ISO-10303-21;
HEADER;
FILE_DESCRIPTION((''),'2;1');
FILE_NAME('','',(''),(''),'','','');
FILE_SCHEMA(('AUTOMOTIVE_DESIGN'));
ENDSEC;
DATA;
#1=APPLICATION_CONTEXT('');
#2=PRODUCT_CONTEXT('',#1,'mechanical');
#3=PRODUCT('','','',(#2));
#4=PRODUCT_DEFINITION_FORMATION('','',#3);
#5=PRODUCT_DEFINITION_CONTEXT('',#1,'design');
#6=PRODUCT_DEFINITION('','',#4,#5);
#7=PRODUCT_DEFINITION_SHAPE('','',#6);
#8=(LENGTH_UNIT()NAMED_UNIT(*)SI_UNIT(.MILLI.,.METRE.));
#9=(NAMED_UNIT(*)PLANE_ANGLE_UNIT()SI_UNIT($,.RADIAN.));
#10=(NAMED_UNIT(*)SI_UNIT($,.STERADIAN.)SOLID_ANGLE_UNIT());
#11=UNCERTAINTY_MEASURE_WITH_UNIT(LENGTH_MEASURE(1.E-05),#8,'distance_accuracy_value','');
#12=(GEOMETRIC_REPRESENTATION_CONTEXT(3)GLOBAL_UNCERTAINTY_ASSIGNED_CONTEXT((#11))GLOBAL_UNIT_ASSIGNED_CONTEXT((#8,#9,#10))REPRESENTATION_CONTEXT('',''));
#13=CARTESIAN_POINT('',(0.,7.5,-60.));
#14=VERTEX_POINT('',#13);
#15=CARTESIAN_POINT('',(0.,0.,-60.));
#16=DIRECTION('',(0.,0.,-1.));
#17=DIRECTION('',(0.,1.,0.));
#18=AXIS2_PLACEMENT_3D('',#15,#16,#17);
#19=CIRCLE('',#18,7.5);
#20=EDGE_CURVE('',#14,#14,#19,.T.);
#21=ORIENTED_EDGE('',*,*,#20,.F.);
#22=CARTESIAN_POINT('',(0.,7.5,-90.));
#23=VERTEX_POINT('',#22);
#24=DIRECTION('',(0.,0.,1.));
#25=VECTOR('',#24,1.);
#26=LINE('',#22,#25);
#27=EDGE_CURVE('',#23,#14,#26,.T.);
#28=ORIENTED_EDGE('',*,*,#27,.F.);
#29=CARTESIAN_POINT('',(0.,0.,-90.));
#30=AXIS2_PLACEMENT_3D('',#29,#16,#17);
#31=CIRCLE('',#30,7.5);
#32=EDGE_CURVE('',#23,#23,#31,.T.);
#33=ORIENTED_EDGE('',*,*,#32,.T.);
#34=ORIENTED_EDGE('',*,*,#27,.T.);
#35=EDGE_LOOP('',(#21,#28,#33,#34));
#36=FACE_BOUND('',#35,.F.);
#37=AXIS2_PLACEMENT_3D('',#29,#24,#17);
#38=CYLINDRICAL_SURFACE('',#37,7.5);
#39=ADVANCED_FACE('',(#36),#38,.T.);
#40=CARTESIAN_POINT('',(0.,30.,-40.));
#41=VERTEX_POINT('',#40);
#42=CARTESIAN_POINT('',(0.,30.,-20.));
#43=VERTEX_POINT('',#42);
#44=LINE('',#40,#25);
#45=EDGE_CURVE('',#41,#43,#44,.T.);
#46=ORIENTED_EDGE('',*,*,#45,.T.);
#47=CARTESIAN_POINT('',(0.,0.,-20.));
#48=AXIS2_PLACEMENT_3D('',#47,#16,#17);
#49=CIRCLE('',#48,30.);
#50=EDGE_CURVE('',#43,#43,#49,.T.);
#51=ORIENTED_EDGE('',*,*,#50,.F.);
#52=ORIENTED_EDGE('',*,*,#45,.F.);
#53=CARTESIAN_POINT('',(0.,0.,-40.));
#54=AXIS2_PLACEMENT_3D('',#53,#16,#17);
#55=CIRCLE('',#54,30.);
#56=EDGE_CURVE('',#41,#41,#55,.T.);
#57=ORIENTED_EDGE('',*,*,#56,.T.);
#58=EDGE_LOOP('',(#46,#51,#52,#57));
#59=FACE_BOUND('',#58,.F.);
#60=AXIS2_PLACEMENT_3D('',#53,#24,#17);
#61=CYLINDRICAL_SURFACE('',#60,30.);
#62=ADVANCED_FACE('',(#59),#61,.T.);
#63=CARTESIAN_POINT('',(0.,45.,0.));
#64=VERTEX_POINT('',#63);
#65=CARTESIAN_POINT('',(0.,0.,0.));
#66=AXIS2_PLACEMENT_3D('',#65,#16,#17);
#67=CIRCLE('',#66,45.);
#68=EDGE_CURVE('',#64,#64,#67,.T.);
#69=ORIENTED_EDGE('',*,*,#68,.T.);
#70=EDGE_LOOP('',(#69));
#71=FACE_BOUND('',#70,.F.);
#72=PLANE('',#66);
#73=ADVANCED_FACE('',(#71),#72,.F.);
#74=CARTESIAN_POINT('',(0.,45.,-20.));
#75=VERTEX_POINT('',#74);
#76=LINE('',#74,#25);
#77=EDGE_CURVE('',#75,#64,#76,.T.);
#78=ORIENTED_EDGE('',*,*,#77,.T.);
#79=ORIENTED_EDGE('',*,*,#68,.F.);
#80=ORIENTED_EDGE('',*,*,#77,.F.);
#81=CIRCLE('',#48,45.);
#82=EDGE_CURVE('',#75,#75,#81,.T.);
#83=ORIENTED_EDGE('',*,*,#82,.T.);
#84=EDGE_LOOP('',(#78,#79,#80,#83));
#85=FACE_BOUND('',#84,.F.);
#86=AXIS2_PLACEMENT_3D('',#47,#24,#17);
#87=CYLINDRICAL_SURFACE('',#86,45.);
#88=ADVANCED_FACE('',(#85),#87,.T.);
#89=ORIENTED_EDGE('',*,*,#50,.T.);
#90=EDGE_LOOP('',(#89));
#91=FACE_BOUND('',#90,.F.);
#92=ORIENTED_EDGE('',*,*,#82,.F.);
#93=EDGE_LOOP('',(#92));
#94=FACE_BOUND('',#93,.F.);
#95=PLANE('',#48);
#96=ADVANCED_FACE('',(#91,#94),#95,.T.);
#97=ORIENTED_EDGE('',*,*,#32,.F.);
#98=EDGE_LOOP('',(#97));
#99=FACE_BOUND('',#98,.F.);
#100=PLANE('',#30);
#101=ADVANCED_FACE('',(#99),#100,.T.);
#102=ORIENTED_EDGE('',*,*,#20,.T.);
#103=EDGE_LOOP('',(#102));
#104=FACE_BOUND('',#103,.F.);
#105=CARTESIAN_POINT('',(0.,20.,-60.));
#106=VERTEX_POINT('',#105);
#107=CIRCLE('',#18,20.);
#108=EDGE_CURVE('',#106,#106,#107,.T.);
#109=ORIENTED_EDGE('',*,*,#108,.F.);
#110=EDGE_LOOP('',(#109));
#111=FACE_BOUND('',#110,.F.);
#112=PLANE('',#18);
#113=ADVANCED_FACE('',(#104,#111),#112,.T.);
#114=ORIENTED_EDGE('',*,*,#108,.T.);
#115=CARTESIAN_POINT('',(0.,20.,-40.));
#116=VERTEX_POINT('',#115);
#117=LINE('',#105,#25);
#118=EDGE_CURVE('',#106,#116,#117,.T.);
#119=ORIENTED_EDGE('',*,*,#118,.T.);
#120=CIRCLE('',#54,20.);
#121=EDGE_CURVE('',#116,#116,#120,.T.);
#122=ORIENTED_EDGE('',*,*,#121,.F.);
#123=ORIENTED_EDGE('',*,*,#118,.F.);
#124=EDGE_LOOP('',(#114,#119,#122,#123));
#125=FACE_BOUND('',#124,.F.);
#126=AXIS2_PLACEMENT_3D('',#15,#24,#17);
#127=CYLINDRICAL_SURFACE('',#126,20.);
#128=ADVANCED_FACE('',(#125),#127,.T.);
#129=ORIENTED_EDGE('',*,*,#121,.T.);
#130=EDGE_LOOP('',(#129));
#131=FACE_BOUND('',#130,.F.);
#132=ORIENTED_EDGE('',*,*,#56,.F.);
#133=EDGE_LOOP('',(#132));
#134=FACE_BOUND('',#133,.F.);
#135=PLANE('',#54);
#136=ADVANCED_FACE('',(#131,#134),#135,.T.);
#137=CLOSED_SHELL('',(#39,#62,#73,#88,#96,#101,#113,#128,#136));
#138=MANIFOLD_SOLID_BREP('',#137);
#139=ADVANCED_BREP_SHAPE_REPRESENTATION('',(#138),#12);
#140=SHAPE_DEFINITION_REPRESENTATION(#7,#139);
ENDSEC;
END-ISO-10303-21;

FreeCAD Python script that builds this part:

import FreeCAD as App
import Part
import Sketcher

doc = App.newDocument("Part")
body = doc.addObject("PartDesign::Body", "Body")

# Sketch on YZ plane
sketch1 = body.newObject("Sketcher::SketchObject", "Sketch")
sketch1.AttachmentSupport = (doc.getObject("YZ_Plane"), [""])
sketch1.MapMode = "FlatFace"
sketch1.addGeometry(Part.LineSegment(App.Vector(45, 0, 0), App.Vector(0, 0, 0)), False)
sketch1.addGeometry(Part.LineSegment(App.Vector(0, 0, 0), App.Vector(0, -90, 0)), False)
sketch1.addGeometry(Part.LineSegment(App.Vector(0, -90, 0), App.Vector(8, -90, 0)), False)
sketch1.addGeometry(Part.LineSegment(App.Vector(8, -90, 0), App.Vector(8, -60, 0)), False)
sketch1.addGeometry(Part.LineSegment(App.Vector(8, -60, 0), App.Vector(20, -60, 0)), False)
sketch1.addGeometry(Part.LineSegment(App.Vector(20, -60, 0), App.Vector(20, -40, 0)), False)
sketch1.addGeometry(Part.LineSegment(App.Vector(20, -40, 0), App.Vector(30, -40, 0)), False)
sketch1.addGeometry(Part.LineSegment(App.Vector(30, -40, 0), App.Vector(30, -20, 0)), False)
sketch1.addGeometry(Part.LineSegment(App.Vector(30, -20, 0), App.Vector(45, -20, 0)), False)
sketch1.addGeometry(Part.LineSegment(App.Vector(45, -20, 0), App.Vector(45, 0, 0)), False)
sketch1.addConstraint(Sketcher.Constraint("Coincident", 0, 2, 1, 1))
sketch1.addConstraint(Sketcher.Constraint("Coincident", 1, 2, 2, 1))
sketch1.addConstraint(Sketcher.Constraint("Coincident", 2, 2, 3, 1))
sketch1.addConstraint(Sketcher.Constraint("Coincident", 3, 2, 4, 1))
sketch1.addConstraint(Sketcher.Constraint("Coincident", 4, 2, 5, 1))
sketch1.addConstraint(Sketcher.Constraint("Coincident", 5, 2, 6, 1))
sketch1.addConstraint(Sketcher.Constraint("Coincident", 6, 2, 7, 1))
sketch1.addConstraint(Sketcher.Constraint("Coincident", 7, 2, 8, 1))
sketch1.addConstraint(Sketcher.Constraint("Coincident", 8, 2, 9, 1))
sketch1.addConstraint(Sketcher.Constraint("Coincident", 9, 2, 0, 1))
sketch1.addConstraint(Sketcher.Constraint("Horizontal", 0))
sketch1.addConstraint(Sketcher.Constraint("Vertical", 1))
sketch1.addConstraint(Sketcher.Constraint("Horizontal", 2))
sketch1.addConstraint(Sketcher.Constraint("Vertical", 3))
sketch1.addConstraint(Sketcher.Constraint("Horizontal", 4))
sketch1.addConstraint(Sketcher.Constraint("Vertical", 5))
sketch1.addConstraint(Sketcher.Constraint("Horizontal", 6))
sketch1.addConstraint(Sketcher.Constraint("Vertical", 7))
sketch1.addConstraint(Sketcher.Constraint("Horizontal", 8))
sketch1.addConstraint(Sketcher.Constraint("Vertical", 9))
sketch1.addConstraint(Sketcher.Constraint("Coincident", 0, 2, -1, 1))
sketch1.addConstraint(Sketcher.Constraint("Equal", 5, 7))
sketch1.addConstraint(Sketcher.Constraint("Equal", 7, 9))
sketch1.addConstraint(Sketcher.Constraint("DistanceX", 8, 1, 8, 2, 15.0))
sketch1.addConstraint(Sketcher.Constraint("DistanceY", 1, 2, 1, 1, 90.0))
sketch1.addConstraint(Sketcher.Constraint("DistanceY", 5, 1, 5, 2, 20.0))
sketch1.addConstraint(Sketcher.Constraint("DistanceX", -1, 1, 4, 2, 20.0))
sketch1.addConstraint(Sketcher.Constraint("DistanceX", 0, 2, 0, 1, 45.0))
sketch1.addConstraint(Sketcher.Constraint("DistanceX", 2, 1, 2, 2, 7.5))
revolution = body.newObject("PartDesign::Revolution", "Revolution")
revolution.Profile = sketch1
revolution.ReferenceAxis = (sketch1, ["V_Axis"])
revolution.Angle = 360

doc.recompute()
